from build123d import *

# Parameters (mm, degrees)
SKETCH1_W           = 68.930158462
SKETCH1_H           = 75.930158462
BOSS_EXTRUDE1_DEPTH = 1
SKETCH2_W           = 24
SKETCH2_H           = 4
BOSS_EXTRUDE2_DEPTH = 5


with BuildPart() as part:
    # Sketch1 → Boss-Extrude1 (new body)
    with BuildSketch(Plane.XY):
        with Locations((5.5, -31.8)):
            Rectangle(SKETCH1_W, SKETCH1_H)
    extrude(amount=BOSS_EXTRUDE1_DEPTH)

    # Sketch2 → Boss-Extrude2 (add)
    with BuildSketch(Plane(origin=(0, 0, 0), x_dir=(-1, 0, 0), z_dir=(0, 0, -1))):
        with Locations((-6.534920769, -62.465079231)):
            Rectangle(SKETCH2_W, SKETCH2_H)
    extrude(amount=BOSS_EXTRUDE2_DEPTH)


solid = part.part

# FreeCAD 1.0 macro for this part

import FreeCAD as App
import Part
import Sketcher


def add_polygon(sketch, points):
    """Adds a closed chain of lines whose ends are joined by coincident constraints."""
    first, n = sketch.GeometryCount, len(points)
    for a, b in zip(points, points[1:] + points[:1]):
        sketch.addGeometry(Part.LineSegment(App.Vector(*a, 0), App.Vector(*b, 0)), False)
    for i in range(n):
        sketch.addConstraint(Sketcher.Constraint("Coincident", first + i, 2, first + (i + 1) % n, 1))

doc = App.newDocument("Part")
body = doc.addObject("PartDesign::Body", "Body")

sketch1 = doc.addObject("Sketcher::SketchObject", "Sketch")
body.addObject(sketch1)
sketch1.AttachmentSupport = (doc.XY_Plane, [""])
sketch1.MapMode = "FlatFace"
add_polygon(sketch1, [(-29, 6), (-29, -70), (40, -70), (40, 6)])
sketch1.addConstraint([
    Sketcher.Constraint("Vertical", 0),
    Sketcher.Constraint("Horizontal", 1),
    Sketcher.Constraint("Vertical", 2),
    Sketcher.Constraint("Horizontal", 3),
    Sketcher.Constraint("DistanceX", 1, 1, 1, 2, 68.930158),
    Sketcher.Constraint("DistanceY", 0, 2, 0, 1, 75.930158),
    Sketcher.Constraint("DistanceX", 0, 2, -1, 1, 28.965079),
    Sketcher.Constraint("DistanceY", 0, 2, -1, 1, 69.765079),
])
pad1 = doc.addObject("PartDesign::Pad", "Pad")
body.addObject(pad1)
pad1.Profile = sketch1
pad1.Length = 1

sketch2 = doc.addObject("Sketcher::SketchObject", "Sketch001")
body.addObject(sketch2)
sketch2.AttachmentSupport = (doc.XY_Plane, [""])
sketch2.MapMode = "FlatFace"
add_polygon(sketch2, [(18.5, -60.5), (18.5, -64.5), (-5.5, -64.5), (-5.5, -60.5)])
sketch2.addConstraint([
    Sketcher.Constraint("Vertical", 0),
    Sketcher.Constraint("Horizontal", 1),
    Sketcher.Constraint("Vertical", 2),
    Sketcher.Constraint("Horizontal", 3),
    Sketcher.Constraint("DistanceX", 1, 2, 1, 1, 24.0),
    Sketcher.Constraint("DistanceY", 0, 2, 0, 1, 4.0),
    Sketcher.Constraint("DistanceX", -1, 1, 0, 2, 18.534921),
    Sketcher.Constraint("DistanceY", 0, 2, -1, 1, 64.465079),
])
pad2 = doc.addObject("PartDesign::Pad", "Pad001")
body.addObject(pad2)
pad2.Profile = sketch2
pad2.Length = 5
pad2.Reversed = True

doc.recompute()
